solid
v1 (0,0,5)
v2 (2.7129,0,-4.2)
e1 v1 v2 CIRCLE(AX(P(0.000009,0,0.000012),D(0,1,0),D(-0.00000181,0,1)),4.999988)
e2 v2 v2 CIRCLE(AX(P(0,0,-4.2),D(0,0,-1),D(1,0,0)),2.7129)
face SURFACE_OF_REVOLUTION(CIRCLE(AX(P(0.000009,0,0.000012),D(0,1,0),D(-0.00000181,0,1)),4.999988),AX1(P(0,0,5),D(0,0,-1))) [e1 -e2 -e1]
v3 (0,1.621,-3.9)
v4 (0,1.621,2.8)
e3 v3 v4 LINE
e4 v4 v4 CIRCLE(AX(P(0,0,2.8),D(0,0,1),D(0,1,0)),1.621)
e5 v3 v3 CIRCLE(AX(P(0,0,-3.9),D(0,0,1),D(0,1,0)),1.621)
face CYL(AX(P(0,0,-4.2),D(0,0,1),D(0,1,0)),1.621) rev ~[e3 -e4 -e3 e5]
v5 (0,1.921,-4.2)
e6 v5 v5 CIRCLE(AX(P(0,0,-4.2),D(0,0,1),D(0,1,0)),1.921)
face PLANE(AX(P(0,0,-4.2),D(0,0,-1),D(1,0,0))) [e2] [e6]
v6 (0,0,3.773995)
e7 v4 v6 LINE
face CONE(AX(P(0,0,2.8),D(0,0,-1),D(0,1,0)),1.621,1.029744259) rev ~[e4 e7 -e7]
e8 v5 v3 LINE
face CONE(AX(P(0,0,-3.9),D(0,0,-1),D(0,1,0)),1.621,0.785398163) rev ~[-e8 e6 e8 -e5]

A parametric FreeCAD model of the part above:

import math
import FreeCAD as App
import Part
import Sketcher
from FreeCAD import Vector


def edges_at(feature, points):
    """Names of the edges that pass closest to the given points."""
    edges = feature.Shape.Edges
    near = lambda p: min(range(len(edges)), key=lambda i: edges[i].distToShape(Part.Vertex(*p))[0])
    return sorted({f"Edge{near(p) + 1}" for p in points})

doc = App.newDocument("Part")
params = doc.addObject("Spreadsheet::Sheet", "Params")
for row, (alias, value) in enumerate([
    ("sketch1_radius", "5 mm"),
    ("sketch1_height", "9.2 mm"),
    ("revolution_angle", "360 deg"),
    ("hole_diameter", "3.242 mm"),
    ("hole_depth", "7 mm"),
    ("chamfer_size", "0.3 mm"),
], start=1):
    params.set(f"A{row}", alias)
    params.set(f"B{row}", "=" + value)
    params.setAlias(f"B{row}", alias)

body = doc.addObject("PartDesign::Body", "Body")

# Sketch on XZ plane
sketch1 = body.newObject("Sketcher::SketchObject", "Sketch")
sketch1.AttachmentSupport = (doc.getObject("XZ_Plane"), [""])
sketch1.MapMode = "FlatFace"
sketch1.addGeometry(Part.LineSegment(Vector(0, -4.2, 0), Vector(0, 5, 0)), False)
sketch1.addGeometry(Part.ArcOfCircle(Part.Circle(Vector(0, 0, 0), Vector(0, 0, 1), 5), math.radians(-57), math.radians(90)), False)
sketch1.addGeometry(Part.LineSegment(Vector(2.7, -4.2, 0), Vector(0, -4.2, 0)), False)
sketch1.addConstraint(Sketcher.Constraint("Coincident", 0, 2, 1, 2))
sketch1.addConstraint(Sketcher.Constraint("Coincident", 1, 1, 2, 1))
sketch1.addConstraint(Sketcher.Constraint("Coincident", 2, 2, 0, 1))
sketch1.addConstraint(Sketcher.Constraint("Vertical", 0))
sketch1.addConstraint(Sketcher.Constraint("Horizontal", 2))
sketch1.addConstraint(Sketcher.Constraint("Coincident", 1, 3, -1, 1))
sketch1.addConstraint(Sketcher.Constraint("PointOnObject", 0, 2, -2))
sketch1.addConstraint(Sketcher.Constraint("Radius", 1, 5.0))
sketch1.addConstraint(Sketcher.Constraint("DistanceY", 0, 1, 0, 2, 9.2))
sketch1.setExpression("Constraints[7]", "Params.sketch1_radius")
sketch1.setExpression("Constraints[8]", "Params.sketch1_height")
revolution = body.newObject("PartDesign::Revolution", "Revolution")
revolution.Profile = sketch1
revolution.ReferenceAxis = (sketch1, ["V_Axis"])
revolution.setExpression("Angle", "Params.revolution_angle")

# Sketch on XY plane
sketch2 = body.newObject("Sketcher::SketchObject", "Sketch001")
sketch2.AttachmentSupport = (doc.getObject("XY_Plane"), [""])
sketch2.MapMode = "FlatFace"
sketch2.AttachmentOffset = App.Placement(Vector(0, 0, -4.2), App.Rotation())
sketch2.addGeometry(Part.Circle(Vector(0, 0, 0), Vector(0, 0, 1), 1.6), False)
sketch2.addConstraint(Sketcher.Constraint("Coincident", 0, 3, -1, 1))
sketch2.addConstraint(Sketcher.Constraint("Diameter", 0, 3.242))
doc.recompute()
hole = body.newObject("PartDesign::Hole", "Hole")
hole.Profile = sketch2
hole.ThreadType = "None"
hole.setExpression("Diameter", "Params.hole_diameter")
hole.DepthType = "Dimension"
hole.setExpression("Depth", "Params.hole_depth")
hole.DrillPoint = "Angled"
hole.DrillPointAngle = 118
hole.Reversed = True
doc.recompute()

chamfer = body.newObject("PartDesign::Chamfer", "Chamfer")
chamfer.Base = (hole, edges_at(hole, [(0, -1.621, -4.2)]))
chamfer.setExpression("Size", "Params.chamfer_size")

doc.recompute()
